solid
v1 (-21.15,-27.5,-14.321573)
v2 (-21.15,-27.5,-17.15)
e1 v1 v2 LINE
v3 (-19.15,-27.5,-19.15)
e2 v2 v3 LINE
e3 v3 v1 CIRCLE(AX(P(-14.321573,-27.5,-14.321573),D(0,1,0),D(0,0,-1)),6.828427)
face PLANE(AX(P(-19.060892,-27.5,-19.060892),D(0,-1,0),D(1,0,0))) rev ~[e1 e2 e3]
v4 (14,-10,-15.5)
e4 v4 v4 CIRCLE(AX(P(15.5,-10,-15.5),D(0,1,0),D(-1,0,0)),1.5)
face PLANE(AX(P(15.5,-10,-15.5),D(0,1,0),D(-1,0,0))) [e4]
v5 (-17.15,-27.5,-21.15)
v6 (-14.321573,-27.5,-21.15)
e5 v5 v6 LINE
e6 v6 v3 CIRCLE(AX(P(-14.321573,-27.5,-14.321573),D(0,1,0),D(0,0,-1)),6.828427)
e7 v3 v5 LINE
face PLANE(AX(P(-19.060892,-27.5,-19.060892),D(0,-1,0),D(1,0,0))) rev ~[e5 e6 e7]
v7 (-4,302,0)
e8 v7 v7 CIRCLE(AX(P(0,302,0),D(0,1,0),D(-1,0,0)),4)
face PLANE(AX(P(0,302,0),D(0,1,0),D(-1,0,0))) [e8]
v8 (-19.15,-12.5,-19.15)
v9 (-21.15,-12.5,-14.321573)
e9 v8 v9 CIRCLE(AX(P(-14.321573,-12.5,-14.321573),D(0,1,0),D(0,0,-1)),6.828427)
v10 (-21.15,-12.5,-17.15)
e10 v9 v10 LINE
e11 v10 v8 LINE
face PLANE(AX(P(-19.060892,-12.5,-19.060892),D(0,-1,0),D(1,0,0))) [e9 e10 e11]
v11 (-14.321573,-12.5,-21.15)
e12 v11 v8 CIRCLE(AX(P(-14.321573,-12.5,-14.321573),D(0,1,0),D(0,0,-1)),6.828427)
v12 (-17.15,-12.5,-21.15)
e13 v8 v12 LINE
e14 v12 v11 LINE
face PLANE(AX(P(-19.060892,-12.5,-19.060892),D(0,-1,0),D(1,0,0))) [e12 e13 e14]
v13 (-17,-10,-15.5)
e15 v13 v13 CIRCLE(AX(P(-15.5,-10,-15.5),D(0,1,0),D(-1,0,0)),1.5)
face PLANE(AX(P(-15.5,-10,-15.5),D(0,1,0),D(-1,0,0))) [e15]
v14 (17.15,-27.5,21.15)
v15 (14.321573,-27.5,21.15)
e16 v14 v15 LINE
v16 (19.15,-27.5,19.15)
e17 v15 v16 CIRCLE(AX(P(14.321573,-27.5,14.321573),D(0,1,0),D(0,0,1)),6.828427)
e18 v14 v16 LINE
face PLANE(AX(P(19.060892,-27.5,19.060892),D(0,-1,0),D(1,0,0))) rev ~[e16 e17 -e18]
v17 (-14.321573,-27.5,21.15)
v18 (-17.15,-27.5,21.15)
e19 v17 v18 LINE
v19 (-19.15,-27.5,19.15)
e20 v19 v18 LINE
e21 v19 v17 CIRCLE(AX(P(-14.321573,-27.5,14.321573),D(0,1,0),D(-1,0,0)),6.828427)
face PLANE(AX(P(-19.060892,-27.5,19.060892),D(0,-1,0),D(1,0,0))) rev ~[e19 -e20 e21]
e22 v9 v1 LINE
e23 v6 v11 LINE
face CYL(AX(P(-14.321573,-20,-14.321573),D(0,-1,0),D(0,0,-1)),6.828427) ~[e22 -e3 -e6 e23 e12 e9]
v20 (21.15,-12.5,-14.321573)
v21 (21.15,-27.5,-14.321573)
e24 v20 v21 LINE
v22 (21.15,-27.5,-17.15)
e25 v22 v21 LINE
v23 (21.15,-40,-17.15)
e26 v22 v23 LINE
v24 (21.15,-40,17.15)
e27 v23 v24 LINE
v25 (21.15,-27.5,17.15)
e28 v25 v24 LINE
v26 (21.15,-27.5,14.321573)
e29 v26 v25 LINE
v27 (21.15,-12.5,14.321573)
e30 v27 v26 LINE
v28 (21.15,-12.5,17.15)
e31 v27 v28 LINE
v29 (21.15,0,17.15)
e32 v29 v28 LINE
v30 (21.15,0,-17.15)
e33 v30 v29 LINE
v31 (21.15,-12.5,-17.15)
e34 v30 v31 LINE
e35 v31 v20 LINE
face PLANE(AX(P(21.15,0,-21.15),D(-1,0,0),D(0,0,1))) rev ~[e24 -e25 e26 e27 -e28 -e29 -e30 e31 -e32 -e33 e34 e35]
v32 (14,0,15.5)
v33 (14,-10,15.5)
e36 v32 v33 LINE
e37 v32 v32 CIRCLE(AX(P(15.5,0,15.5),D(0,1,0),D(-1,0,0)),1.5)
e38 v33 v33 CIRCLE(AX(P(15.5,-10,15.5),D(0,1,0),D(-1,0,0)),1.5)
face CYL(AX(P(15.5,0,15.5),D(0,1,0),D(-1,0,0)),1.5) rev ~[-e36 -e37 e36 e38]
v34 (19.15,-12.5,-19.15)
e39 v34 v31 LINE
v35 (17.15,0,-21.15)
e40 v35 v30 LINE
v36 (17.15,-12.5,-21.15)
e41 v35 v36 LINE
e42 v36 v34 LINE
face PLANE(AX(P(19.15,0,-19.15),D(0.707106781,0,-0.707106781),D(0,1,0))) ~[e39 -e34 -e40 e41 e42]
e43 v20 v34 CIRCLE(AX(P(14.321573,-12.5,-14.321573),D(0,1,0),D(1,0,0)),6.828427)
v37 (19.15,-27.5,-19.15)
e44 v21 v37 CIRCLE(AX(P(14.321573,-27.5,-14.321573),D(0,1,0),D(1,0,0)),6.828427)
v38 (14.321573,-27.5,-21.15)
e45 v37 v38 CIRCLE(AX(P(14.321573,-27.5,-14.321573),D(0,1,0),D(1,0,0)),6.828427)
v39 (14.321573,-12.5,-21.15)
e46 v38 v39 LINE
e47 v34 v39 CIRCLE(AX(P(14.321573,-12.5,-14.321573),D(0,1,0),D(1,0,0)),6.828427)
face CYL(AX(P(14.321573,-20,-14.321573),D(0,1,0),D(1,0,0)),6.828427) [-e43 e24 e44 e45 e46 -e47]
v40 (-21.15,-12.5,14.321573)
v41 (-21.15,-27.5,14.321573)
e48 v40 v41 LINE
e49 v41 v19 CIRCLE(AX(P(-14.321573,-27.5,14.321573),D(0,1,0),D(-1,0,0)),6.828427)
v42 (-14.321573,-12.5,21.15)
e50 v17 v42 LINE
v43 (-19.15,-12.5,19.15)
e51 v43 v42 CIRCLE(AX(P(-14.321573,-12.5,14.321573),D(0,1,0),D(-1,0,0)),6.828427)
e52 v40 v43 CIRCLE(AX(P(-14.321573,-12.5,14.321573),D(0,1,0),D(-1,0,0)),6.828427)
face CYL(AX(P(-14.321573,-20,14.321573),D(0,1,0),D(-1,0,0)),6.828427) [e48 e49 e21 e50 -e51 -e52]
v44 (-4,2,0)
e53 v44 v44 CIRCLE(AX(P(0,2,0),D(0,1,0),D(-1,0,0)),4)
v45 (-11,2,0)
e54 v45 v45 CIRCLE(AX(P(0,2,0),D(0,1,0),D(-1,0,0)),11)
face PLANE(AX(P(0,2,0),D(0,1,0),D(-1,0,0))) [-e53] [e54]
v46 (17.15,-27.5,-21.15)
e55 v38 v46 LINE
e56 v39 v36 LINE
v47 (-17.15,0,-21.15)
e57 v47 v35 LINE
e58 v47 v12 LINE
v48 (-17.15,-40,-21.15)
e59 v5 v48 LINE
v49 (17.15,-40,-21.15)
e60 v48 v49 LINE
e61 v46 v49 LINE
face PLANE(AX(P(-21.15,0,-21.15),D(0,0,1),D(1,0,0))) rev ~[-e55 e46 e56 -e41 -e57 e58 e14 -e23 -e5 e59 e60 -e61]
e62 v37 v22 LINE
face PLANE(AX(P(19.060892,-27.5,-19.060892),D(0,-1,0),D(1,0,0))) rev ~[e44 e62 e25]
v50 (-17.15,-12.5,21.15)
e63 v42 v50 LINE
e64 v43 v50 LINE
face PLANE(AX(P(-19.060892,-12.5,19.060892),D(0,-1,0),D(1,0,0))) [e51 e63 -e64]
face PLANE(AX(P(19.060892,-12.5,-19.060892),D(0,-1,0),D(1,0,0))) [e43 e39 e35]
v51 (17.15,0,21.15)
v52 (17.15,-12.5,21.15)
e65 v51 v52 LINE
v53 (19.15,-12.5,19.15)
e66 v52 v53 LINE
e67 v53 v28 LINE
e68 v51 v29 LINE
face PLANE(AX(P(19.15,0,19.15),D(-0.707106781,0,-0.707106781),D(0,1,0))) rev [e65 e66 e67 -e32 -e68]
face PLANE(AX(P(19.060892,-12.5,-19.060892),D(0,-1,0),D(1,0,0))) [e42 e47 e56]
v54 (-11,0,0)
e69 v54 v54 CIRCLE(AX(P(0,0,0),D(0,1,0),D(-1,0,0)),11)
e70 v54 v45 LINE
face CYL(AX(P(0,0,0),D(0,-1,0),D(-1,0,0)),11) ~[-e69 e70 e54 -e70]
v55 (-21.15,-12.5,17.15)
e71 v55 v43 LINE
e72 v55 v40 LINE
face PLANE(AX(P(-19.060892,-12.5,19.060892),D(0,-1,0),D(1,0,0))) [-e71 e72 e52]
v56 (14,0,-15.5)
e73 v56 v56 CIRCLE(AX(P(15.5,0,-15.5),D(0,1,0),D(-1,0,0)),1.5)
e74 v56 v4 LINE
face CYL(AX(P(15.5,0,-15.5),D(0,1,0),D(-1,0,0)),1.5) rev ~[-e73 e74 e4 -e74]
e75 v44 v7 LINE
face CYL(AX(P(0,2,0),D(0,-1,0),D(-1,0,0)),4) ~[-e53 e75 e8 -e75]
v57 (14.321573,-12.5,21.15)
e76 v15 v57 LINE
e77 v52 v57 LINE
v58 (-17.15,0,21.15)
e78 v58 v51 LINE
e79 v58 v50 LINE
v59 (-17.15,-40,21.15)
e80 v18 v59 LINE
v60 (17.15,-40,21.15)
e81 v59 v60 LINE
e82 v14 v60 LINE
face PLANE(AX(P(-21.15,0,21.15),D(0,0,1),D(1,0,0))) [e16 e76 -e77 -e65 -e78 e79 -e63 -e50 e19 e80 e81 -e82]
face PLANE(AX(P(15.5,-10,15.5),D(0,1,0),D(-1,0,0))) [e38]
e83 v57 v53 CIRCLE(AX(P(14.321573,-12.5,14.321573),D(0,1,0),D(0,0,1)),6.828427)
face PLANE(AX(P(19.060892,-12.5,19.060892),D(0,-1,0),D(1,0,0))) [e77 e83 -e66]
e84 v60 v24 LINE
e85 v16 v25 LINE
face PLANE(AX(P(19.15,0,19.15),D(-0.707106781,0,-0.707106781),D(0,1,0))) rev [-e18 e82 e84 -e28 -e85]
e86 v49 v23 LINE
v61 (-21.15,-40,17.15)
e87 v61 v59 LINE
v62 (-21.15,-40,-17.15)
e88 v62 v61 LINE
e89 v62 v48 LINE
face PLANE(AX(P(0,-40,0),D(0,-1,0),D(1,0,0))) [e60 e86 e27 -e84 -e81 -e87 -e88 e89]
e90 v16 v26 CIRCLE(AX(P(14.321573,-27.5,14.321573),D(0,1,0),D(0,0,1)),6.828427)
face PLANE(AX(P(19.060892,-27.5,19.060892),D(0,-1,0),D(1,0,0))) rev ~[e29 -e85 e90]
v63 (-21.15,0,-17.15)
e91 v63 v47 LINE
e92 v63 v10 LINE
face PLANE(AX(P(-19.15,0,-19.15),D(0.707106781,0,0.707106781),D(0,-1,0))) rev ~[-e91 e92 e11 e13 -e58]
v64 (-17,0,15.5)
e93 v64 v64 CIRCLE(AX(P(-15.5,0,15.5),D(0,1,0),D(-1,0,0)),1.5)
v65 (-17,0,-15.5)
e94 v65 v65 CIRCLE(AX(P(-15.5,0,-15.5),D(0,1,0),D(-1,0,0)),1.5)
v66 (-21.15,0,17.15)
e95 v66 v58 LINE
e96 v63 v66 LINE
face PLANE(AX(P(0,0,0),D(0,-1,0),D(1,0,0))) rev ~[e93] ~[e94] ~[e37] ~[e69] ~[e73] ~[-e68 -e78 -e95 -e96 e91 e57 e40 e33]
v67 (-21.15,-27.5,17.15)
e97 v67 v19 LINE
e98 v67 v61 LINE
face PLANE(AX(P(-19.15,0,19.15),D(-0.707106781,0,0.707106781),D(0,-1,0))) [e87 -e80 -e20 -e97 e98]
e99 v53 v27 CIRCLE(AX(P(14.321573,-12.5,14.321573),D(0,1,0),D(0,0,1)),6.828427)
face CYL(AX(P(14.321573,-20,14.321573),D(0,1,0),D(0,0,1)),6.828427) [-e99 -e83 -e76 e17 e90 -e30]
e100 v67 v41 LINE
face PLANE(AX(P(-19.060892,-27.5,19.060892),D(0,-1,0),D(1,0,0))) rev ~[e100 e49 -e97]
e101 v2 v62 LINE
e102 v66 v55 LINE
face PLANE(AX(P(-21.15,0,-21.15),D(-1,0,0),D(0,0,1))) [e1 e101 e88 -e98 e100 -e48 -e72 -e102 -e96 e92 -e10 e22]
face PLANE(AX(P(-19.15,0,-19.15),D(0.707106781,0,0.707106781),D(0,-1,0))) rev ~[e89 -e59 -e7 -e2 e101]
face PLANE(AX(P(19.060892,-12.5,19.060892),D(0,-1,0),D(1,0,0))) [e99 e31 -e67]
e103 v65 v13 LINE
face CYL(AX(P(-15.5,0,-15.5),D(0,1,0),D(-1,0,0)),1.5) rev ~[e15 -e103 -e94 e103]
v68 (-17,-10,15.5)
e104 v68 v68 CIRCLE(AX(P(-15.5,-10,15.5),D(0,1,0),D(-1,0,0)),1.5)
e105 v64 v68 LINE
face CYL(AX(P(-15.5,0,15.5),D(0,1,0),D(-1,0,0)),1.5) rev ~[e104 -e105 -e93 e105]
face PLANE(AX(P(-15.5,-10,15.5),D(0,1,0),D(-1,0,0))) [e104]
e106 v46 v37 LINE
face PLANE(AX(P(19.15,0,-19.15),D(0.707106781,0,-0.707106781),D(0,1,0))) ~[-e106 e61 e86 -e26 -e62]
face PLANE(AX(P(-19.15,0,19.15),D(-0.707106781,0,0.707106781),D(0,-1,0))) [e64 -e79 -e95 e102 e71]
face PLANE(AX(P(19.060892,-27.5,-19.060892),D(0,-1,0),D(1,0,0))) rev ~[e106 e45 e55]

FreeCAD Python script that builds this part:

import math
import FreeCAD as App
import Part
import Sketcher
Q = App.Units.Quantity


def edges_at(feature, points):
    """Names of the edges that pass closest to the given points."""
    edges = feature.Shape.Edges
    near = lambda p: min(range(len(edges)), key=lambda i: edges[i].distToShape(Part.Vertex(*p))[0])
    return sorted({f"Edge{near(p) + 1}" for p in points})


def add_polygon(sketch, points):
    """Adds a closed chain of lines whose ends are joined by coincident constraints."""
    first, n = sketch.GeometryCount, len(points)
    for a, b in zip(points, points[1:] + points[:1]):
        sketch.addGeometry(Part.LineSegment(App.Vector(*a, 0), App.Vector(*b, 0)), False)
    for i in range(n):
        sketch.addConstraint(Sketcher.Constraint("Coincident", first + i, 2, first + (i + 1) % n, 1))

doc = App.newDocument("Part")
body = doc.addObject("PartDesign::Body", "Body")

# Sketch on XZ plane
sketch1 = body.newObject("Sketcher::SketchObject", "Sketch")
sketch1.AttachmentSupport = (doc.getObject("XZ_Plane"), [""])
sketch1.MapMode = "FlatFace"
add_polygon(sketch1, [(-21.15, 21.15), (-21.15, -21.15), (21.15, -21.15), (21.15, 21.15)])  # lines 0-3
sketch1.addConstraint([
    Sketcher.Constraint("Vertical", 0),
    Sketcher.Constraint("Horizontal", 1),
    Sketcher.Constraint("Vertical", 2),
    Sketcher.Constraint("Horizontal", 3),
    Sketcher.Constraint("Symmetric", 0, 2, 2, 2, -1, 1),
    Sketcher.Constraint("Equal", 3, 0),
    Sketcher.Constraint("DistanceX", 1, 1, 1, 2, Q("42.3 mm")),
])
pad1 = body.newObject("PartDesign::Pad", "Pad")
pad1.Profile = sketch1
pad1.Length = 40

# Sketch on XZ plane
sketch2 = body.newObject("Sketcher::SketchObject", "Sketch001")
sketch2.AttachmentSupport = (doc.getObject("XZ_Plane"), [""])
sketch2.MapMode = "FlatFace"
sketch2.addGeometry(Part.Circle(App.Vector(0, 0, 0), App.Vector(0, 0, 1), 11), False)
sketch2.addConstraint([
    Sketcher.Constraint("Coincident", 0, 3, -1, 1),
    Sketcher.Constraint("Diameter", 0, Q("22 mm")),
])
pad2 = body.newObject("PartDesign::Pad", "Pad001")
pad2.Profile = sketch2
pad2.Length = 2
pad2.Reversed = True

# Sketch on XZ plane
sketch3 = body.newObject("Sketcher::SketchObject", "Sketch002")
sketch3.AttachmentSupport = (doc.getObject("XZ_Plane"), [""])
sketch3.MapMode = "FlatFace"
sketch3.AttachmentOffset = App.Placement(App.Vector(0, 0, -2), App.Rotation())
sketch3.addGeometry(Part.Circle(App.Vector(0, 0, 0), App.Vector(0, 0, 1), 4), False)
sketch3.addConstraint([
    Sketcher.Constraint("Coincident", 0, 3, -1, 1),
    Sketcher.Constraint("Diameter", 0, Q("8 mm")),
])
pad3 = body.newObject("PartDesign::Pad", "Pad002")
pad3.Profile = sketch3
pad3.Length = 300
pad3.Reversed = True
doc.recompute()

chamfer = body.newObject("PartDesign::Chamfer", "Chamfer")
chamfer.Base = (pad3, edges_at(pad3, [
    (-21.15, -20, 21.15),
    (-21.15, -20, -21.15),
    (21.15, -20, -21.15),
    (21.15, -20, 21.15),
]))
chamfer.Size = 4

# Sketch on XZ plane
sketch4 = body.newObject("Sketcher::SketchObject", "Sketch003")
sketch4.AttachmentSupport = (doc.getObject("XZ_Plane"), [""])
sketch4.MapMode = "FlatFace"
sketch4.AttachmentOffset = App.Placement(App.Vector(0, 0, 20), App.Rotation())
sketch4.addGeometry([
    Part.ArcOfCircle(Part.Circle(App.Vector(14.321573, 14.321573, 0), App.Vector(0, 0, 1), 6.828427), math.radians(0), math.radians(90)),  # 0
    Part.LineSegment(App.Vector(21.15, 14.321573, 0), App.Vector(21.15, 21.15, 0)),  # 1
    Part.LineSegment(App.Vector(21.15, 21.15, 0), App.Vector(14.321573, 21.15, 0)),  # 2
    Part.LineSegment(App.Vector(-21.15, 21.15, 0), App.Vector(-21.15, 14.321573, 0)),  # 3
    Part.ArcOfCircle(Part.Circle(App.Vector(-14.321573, 14.321573, 0), App.Vector(0, 0, 1), 6.828427), math.radians(90), math.radians(180)),  # 4
    Part.LineSegment(App.Vector(-14.321573, 21.15, 0), App.Vector(-21.15, 21.15, 0)),  # 5
    Part.LineSegment(App.Vector(21.15, -21.15, 0), App.Vector(21.15, -14.321573, 0)),  # 6
    Part.ArcOfCircle(Part.Circle(App.Vector(14.321573, -14.321573, 0), App.Vector(0, 0, 1), 6.828427), math.radians(-90), math.radians(0)),  # 7
    Part.LineSegment(App.Vector(14.321573, -21.15, 0), App.Vector(21.15, -21.15, 0)),  # 8
    Part.ArcOfCircle(Part.Circle(App.Vector(-14.321573, -14.321573, 0), App.Vector(0, 0, 1), 6.828427), math.radians(180), math.radians(270)),  # 9
    Part.LineSegment(App.Vector(-21.15, -14.321573, 0), App.Vector(-21.15, -21.15, 0)),  # 10
    Part.LineSegment(App.Vector(-21.15, -21.15, 0), App.Vector(-14.321573, -21.15, 0)),  # 11
], False)
sketch4.addConstraint([
    Sketcher.Constraint("Tangent", 0, 1, 1, 1),
    Sketcher.Constraint("Coincident", 1, 2, 2, 1),
    Sketcher.Constraint("Tangent", 2, 2, 0, 2),
    Sketcher.Constraint("Tangent", 3, 2, 4, 2),
    Sketcher.Constraint("Tangent", 4, 1, 5, 1),
    Sketcher.Constraint("Coincident", 5, 2, 3, 1),
    Sketcher.Constraint("Tangent", 6, 2, 7, 2),
    Sketcher.Constraint("Tangent", 7, 1, 8, 1),
    Sketcher.Constraint("Coincident", 8, 2, 6, 1),
    Sketcher.Constraint("Tangent", 9, 1, 10, 1),
    Sketcher.Constraint("Coincident", 10, 2, 11, 1),
    Sketcher.Constraint("Tangent", 11, 2, 9, 2),
    Sketcher.Constraint("Vertical", 1),
    Sketcher.Constraint("Horizontal", 2),
    Sketcher.Constraint("Vertical", 3),
    Sketcher.Constraint("Horizontal", 5),
    Sketcher.Constraint("Vertical", 6),
    Sketcher.Constraint("Horizontal", 8),
    Sketcher.Constraint("Vertical", 10),
    Sketcher.Constraint("Horizontal", 11),
    Sketcher.Constraint("Equal", 0, 4),
    Sketcher.Constraint("Equal", 4, 7),
    Sketcher.Constraint("Equal", 7, 9),
    Sketcher.Constraint("Symmetric", 4, 3, 7, 3, -1, 1),
    Sketcher.Constraint("Symmetric", 0, 3, 9, 3, -1, 1),
    Sketcher.Constraint("Symmetric", 0, 3, 4, 3, -2),
    Sketcher.Constraint("DistanceX", 3, 2, 0, 1, Q("42.3 mm")),
    Sketcher.Constraint("DistanceY", -1, 1, 1, 2, Q("21.15 mm")),
    Sketcher.Constraint("Radius", 0, Q("6.828427 mm")),
])
pocket1 = body.newObject("PartDesign::Pocket", "Pocket")
pocket1.Profile = sketch4
pocket1.Length = 15
pocket1.Midplane = True

# Sketch on XZ plane
sketch5 = body.newObject("Sketcher::SketchObject", "Sketch004")
sketch5.AttachmentSupport = (doc.getObject("XZ_Plane"), [""])
sketch5.MapMode = "FlatFace"
sketch5.addGeometry([
    Part.Circle(App.Vector(15.5, 15.5, 0), App.Vector(0, 0, 1), 1.5),
    Part.Circle(App.Vector(-15.5, 15.5, 0), App.Vector(0, 0, 1), 1.5),
    Part.Circle(App.Vector(15.5, -15.5, 0), App.Vector(0, 0, 1), 1.5),
    Part.Circle(App.Vector(-15.5, -15.5, 0), App.Vector(0, 0, 1), 1.5),
], False)
sketch5.addConstraint([
    Sketcher.Constraint("Equal", 0, 1),
    Sketcher.Constraint("Equal", 1, 2),
    Sketcher.Constraint("Equal", 2, 3),
    Sketcher.Constraint("Symmetric", 1, 3, 2, 3, -1, 1),
    Sketcher.Constraint("Symmetric", 0, 3, 3, 3, -1, 1),
    Sketcher.Constraint("Symmetric", 0, 3, 1, 3, -2),
    Sketcher.Constraint("Diameter", 0, Q("3 mm")),
    Sketcher.Constraint("DistanceX", 1, 3, 0, 3, Q("31 mm")),
    Sketcher.Constraint("DistanceY", 2, 3, 0, 3, Q("31 mm")),
])
pocket2 = body.newObject("PartDesign::Pocket", "Pocket001")
pocket2.Profile = sketch5
pocket2.Length = 10
pocket2.Reversed = True

doc.recompute()
